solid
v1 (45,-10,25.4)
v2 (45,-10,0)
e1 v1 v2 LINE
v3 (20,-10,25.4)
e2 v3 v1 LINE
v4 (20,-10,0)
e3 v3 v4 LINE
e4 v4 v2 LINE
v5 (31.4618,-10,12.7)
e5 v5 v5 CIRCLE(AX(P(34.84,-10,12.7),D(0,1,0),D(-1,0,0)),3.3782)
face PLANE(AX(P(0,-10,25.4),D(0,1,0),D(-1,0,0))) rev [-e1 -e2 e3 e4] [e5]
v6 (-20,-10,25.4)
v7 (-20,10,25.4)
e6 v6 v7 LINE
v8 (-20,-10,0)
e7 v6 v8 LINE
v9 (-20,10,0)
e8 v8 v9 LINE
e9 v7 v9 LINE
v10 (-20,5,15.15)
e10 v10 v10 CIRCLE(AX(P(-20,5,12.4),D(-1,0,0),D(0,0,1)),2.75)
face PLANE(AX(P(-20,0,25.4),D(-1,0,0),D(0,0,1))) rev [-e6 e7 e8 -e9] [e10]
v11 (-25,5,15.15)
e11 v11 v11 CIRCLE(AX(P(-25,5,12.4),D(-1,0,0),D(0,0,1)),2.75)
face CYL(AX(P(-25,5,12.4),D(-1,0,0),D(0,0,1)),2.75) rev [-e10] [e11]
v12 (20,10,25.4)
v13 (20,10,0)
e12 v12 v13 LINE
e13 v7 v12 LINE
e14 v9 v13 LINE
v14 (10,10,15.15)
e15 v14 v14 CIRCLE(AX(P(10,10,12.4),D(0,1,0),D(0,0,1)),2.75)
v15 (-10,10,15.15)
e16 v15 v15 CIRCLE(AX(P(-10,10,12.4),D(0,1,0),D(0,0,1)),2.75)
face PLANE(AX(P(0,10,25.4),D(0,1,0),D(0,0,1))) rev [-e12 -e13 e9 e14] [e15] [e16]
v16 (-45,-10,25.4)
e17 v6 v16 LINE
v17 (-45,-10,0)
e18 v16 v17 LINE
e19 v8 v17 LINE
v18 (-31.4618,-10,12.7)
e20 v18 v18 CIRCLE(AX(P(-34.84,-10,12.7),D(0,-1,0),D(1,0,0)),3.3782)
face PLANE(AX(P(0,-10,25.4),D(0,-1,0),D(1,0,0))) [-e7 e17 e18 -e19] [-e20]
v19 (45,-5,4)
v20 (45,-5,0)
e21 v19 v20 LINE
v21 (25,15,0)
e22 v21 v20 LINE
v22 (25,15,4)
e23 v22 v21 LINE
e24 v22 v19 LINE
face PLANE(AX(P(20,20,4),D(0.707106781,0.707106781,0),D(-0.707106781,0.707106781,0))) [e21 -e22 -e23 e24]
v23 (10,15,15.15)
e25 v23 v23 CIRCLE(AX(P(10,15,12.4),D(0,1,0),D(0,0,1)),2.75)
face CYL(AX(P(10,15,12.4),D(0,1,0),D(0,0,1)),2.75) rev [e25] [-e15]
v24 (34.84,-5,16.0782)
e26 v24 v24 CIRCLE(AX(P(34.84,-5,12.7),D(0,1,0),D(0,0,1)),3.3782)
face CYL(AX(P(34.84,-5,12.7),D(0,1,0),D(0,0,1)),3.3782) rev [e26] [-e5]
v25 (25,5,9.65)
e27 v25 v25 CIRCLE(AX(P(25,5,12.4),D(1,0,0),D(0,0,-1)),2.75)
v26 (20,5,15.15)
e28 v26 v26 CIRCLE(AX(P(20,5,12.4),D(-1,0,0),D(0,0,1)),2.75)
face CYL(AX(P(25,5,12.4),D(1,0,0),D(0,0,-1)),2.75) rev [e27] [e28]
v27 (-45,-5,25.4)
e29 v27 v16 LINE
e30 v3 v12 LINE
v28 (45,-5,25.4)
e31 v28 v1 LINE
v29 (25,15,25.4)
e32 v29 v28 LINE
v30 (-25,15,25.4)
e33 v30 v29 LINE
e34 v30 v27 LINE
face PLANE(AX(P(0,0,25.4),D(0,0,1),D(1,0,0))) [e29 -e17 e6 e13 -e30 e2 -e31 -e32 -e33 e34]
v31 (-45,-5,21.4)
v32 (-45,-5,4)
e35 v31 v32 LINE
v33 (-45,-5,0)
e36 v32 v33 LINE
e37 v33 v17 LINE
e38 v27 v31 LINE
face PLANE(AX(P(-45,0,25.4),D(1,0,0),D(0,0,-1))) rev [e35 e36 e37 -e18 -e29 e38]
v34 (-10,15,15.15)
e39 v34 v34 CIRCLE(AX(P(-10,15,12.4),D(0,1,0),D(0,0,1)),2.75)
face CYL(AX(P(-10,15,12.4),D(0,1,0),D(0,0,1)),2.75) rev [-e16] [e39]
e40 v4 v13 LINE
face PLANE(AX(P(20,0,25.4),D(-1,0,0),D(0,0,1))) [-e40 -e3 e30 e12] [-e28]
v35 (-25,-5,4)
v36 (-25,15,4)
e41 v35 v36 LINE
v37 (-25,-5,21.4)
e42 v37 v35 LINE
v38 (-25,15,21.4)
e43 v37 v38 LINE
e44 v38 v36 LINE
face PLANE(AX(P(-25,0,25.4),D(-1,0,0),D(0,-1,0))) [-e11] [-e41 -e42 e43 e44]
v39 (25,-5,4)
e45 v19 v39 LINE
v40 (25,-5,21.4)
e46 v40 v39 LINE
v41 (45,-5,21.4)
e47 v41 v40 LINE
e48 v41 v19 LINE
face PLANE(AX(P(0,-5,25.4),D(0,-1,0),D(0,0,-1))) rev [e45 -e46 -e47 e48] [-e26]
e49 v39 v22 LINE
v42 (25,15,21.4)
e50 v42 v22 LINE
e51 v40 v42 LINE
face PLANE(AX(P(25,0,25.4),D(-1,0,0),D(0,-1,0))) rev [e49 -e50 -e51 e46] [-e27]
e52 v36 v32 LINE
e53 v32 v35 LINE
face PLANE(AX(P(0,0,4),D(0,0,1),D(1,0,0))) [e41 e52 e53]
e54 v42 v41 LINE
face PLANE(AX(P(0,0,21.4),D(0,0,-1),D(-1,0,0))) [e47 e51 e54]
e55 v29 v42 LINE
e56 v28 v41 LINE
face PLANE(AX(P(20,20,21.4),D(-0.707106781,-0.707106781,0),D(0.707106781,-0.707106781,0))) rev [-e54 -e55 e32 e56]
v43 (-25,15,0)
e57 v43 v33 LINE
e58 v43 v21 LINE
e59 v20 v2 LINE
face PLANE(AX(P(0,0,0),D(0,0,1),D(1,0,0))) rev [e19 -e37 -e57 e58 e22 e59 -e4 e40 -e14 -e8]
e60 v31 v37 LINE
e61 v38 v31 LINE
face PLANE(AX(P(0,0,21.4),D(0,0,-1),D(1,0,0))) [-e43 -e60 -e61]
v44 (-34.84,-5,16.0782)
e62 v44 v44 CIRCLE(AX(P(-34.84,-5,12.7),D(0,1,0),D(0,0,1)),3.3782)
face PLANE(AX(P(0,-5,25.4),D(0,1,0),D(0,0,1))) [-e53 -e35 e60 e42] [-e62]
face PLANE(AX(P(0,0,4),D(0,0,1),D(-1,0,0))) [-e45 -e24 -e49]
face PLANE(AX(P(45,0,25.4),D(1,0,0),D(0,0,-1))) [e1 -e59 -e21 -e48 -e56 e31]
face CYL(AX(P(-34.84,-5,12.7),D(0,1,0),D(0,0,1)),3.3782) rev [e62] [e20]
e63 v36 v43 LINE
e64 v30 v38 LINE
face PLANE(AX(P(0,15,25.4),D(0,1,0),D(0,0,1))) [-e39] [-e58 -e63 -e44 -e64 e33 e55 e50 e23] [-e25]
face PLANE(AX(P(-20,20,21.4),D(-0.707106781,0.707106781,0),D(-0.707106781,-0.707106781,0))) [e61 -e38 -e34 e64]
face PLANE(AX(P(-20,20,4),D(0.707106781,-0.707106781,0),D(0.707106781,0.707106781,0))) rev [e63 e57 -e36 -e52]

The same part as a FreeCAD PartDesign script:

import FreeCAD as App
import Part
import Sketcher

V = App.Vector
Q = App.Units.Quantity

doc = App.newDocument("Part")
body = doc.addObject("PartDesign::Body", "Body")

sketch1 = body.newObject("Sketcher::SketchObject", "Sketch")
sketch1.AttachmentSupport = (doc.getObject("XY_Plane"), [""])
sketch1.MapMode = "FlatFace"
sketch1.addGeometry(Part.LineSegment(V(-20, 10, 0), V(0, 10, 0)), False)
sketch1.addGeometry(Part.LineSegment(V(0, 10, 0), V(0, 15, 0)), False)
sketch1.addGeometry(Part.LineSegment(V(0, 15, 0), V(-25, 15, 0)), False)
sketch1.addGeometry(Part.LineSegment(V(-25, 15, 0), V(-25, -5, 0)), False)
sketch1.addGeometry(Part.LineSegment(V(-25, -5, 0), V(-45, -5, 0)), False)
sketch1.addGeometry(Part.LineSegment(V(-45, -5, 0), V(-45, -10, 0)), False)
sketch1.addGeometry(Part.LineSegment(V(-45, -10, 0), V(-20, -10, 0)), False)
sketch1.addGeometry(Part.LineSegment(V(-20, -10, 0), V(-20, 10, 0)), False)
sketch1.addConstraint(Sketcher.Constraint("Coincident", 0, 2, 1, 1))
sketch1.addConstraint(Sketcher.Constraint("Coincident", 1, 2, 2, 1))
sketch1.addConstraint(Sketcher.Constraint("Coincident", 2, 2, 3, 1))
sketch1.addConstraint(Sketcher.Constraint("Coincident", 3, 2, 4, 1))
sketch1.addConstraint(Sketcher.Constraint("Coincident", 4, 2, 5, 1))
sketch1.addConstraint(Sketcher.Constraint("Coincident", 5, 2, 6, 1))
sketch1.addConstraint(Sketcher.Constraint("Coincident", 6, 2, 7, 1))
sketch1.addConstraint(Sketcher.Constraint("Coincident", 7, 2, 0, 1))
sketch1.addConstraint(Sketcher.Constraint("Horizontal", 0))
sketch1.addConstraint(Sketcher.Constraint("Vertical", 1))
sketch1.addConstraint(Sketcher.Constraint("Horizontal", 2))
sketch1.addConstraint(Sketcher.Constraint("Vertical", 3))
sketch1.addConstraint(Sketcher.Constraint("Horizontal", 4))
sketch1.addConstraint(Sketcher.Constraint("Vertical", 5))
sketch1.addConstraint(Sketcher.Constraint("Horizontal", 6))
sketch1.addConstraint(Sketcher.Constraint("Vertical", 7))
sketch1.addConstraint(Sketcher.Constraint("PointOnObject", 0, 2, -2))
sketch1.addConstraint(Sketcher.Constraint("Equal", 0, 4))
sketch1.addConstraint(Sketcher.Constraint("Equal", 4, 3))
sketch1.addConstraint(Sketcher.Constraint("Equal", 1, 5))
sketch1.addConstraint(Sketcher.Constraint("DistanceX", 0, 1, 0, 2, Q("20 mm")))
sketch1.addConstraint(Sketcher.Constraint("DistanceX", 2, 2, 2, 1, Q("25 mm")))
sketch1.addConstraint(Sketcher.Constraint("DistanceY", 1, 1, 1, 2, Q("5 mm")))
sketch1.addConstraint(Sketcher.Constraint("DistanceY", -1, 1, 0, 2, Q("10 mm")))
pad1 = body.newObject("PartDesign::Pad", "Pad")
pad1.Profile = sketch1
pad1.Length = 25.4

sketch2 = body.newObject("Sketcher::SketchObject", "Sketch001")
sketch2.AttachmentSupport = (doc.getObject("XY_Plane"), [""])
sketch2.MapMode = "FlatFace"
sketch2.addGeometry(Part.LineSegment(V(-25, -5, 0), V(-25, 15, 0)), False)
sketch2.addGeometry(Part.LineSegment(V(-25, 15, 0), V(-45, -5, 0)), False)
sketch2.addGeometry(Part.LineSegment(V(-45, -5, 0), V(-25, -5, 0)), False)
sketch2.addConstraint(Sketcher.Constraint("Coincident", 0, 2, 1, 1))
sketch2.addConstraint(Sketcher.Constraint("Coincident", 1, 2, 2, 1))
sketch2.addConstraint(Sketcher.Constraint("Coincident", 2, 2, 0, 1))
sketch2.addConstraint(Sketcher.Constraint("Vertical", 0))
sketch2.addConstraint(Sketcher.Constraint("Horizontal", 2))
sketch2.addConstraint(Sketcher.Constraint("Equal", 2, 0))
sketch2.addConstraint(Sketcher.Constraint("DistanceX", 2, 1, 2, 2, Q("20 mm")))
sketch2.addConstraint(Sketcher.Constraint("DistanceX", 0, 2, -1, 1, Q("25 mm")))
sketch2.addConstraint(Sketcher.Constraint("DistanceY", -1, 1, 0, 2, Q("15 mm")))
pad2 = body.newObject("PartDesign::Pad", "Pad001")
pad2.Profile = sketch2
pad2.Length = 4
doc.recompute()

datumplane = body.newObject("PartDesign::Plane", "DatumPlane")
datumplane.AttachmentSupport = (doc.getObject("XY_Plane"), [""])
datumplane.MapMode = "FlatFace"
datumplane.AttachmentOffset = App.Placement(V(0, 0, 12.7), App.Rotation())
mirrored = body.newObject("PartDesign::Mirrored", "Mirrored")
mirrored.Originals = [pad2]
mirrored.MirrorPlane = (datumplane, [""])
body.Tip = mirrored

sketch3 = body.newObject("Sketcher::SketchObject", "Sketch002")
sketch3.AttachmentSupport = (doc.getObject("YZ_Plane"), [""])
sketch3.MapMode = "FlatFace"
sketch3.AttachmentOffset = App.Placement(V(0, 0, -10), App.Rotation())
sketch3.addGeometry(Part.LineSegment(V(1.347633, 12.4, 0), V(15, 12.4, 0)), False)
sketch3.addGeometry(Part.LineSegment(V(15, 12.4, 0), V(15, 15.15, 0)), False)
sketch3.addGeometry(Part.LineSegment(V(15, 15.15, 0), V(3, 15.15, 0)), False)
sketch3.addGeometry(Part.LineSegment(V(3, 15.15, 0), V(1.347633, 12.4, 0)), False)
sketch3.addGeometry(Part.LineSegment(V(15, 12.4, 0), V(1.347633, 12.4, 0)), True)
sketch3.addConstraint(Sketcher.Constraint("Coincident", 0, 2, 1, 1))
sketch3.addConstraint(Sketcher.Constraint("Coincident", 1, 2, 2, 1))
sketch3.addConstraint(Sketcher.Constraint("Coincident", 2, 2, 3, 1))
sketch3.addConstraint(Sketcher.Constraint("Coincident", 3, 2, 0, 1))
sketch3.addConstraint(Sketcher.Constraint("Horizontal", 0))
sketch3.addConstraint(Sketcher.Constraint("Vertical", 1))
sketch3.addConstraint(Sketcher.Constraint("Horizontal", 2))
sketch3.addConstraint(Sketcher.Constraint("Horizontal", 4))
sketch3.addConstraint(Sketcher.Constraint("Coincident", 4, 1, 0, 2))
sketch3.addConstraint(Sketcher.Constraint("Equal", 0, 4))
sketch3.addConstraint(Sketcher.Constraint("DistanceX", 2, 2, 2, 1, Q("12 mm")))
sketch3.addConstraint(Sketcher.Constraint("Angle", 3, Q("-121 deg")))
sketch3.addConstraint(Sketcher.Constraint("DistanceX", -1, 1, 0, 2, Q("15 mm")))
sketch3.addConstraint(Sketcher.Constraint("DistanceY", 1, 1, 1, 2, Q("2.75 mm")))
sketch3.addConstraint(Sketcher.Constraint("DistanceY", -1, 1, 0, 2, Q("12.4 mm")))
groove = body.newObject("PartDesign::Groove", "Groove")
groove.Profile = sketch3
groove.ReferenceAxis = (sketch3, ["Axis0"])
groove.Angle = 360

sketch4 = body.newObject("Sketcher::SketchObject", "Sketch003")
sketch4.AttachmentSupport = (doc.getObject("XZ_Plane"), [""])
sketch4.MapMode = "FlatFace"
sketch4.AttachmentOffset = App.Placement(V(0, 0, -5), App.Rotation())
sketch4.addGeometry(Part.LineSegment(V(-11.347633, 12.4, 0), V(-25, 12.4, 0)), False)
sketch4.addGeometry(Part.LineSegment(V(-25, 12.4, 0), V(-25, 15.15, 0)), False)
sketch4.addGeometry(Part.LineSegment(V(-25, 15.15, 0), V(-13, 15.15, 0)), False)
sketch4.addGeometry(Part.LineSegment(V(-13, 15.15, 0), V(-11.347633, 12.4, 0)), False)
sketch4.addGeometry(Part.LineSegment(V(-25, 12.4, 0), V(-11.347633, 12.4, 0)), True)
sketch4.addConstraint(Sketcher.Constraint("Coincident", 0, 2, 1, 1))
sketch4.addConstraint(Sketcher.Constraint("Coincident", 1, 2, 2, 1))
sketch4.addConstraint(Sketcher.Constraint("Coincident", 2, 2, 3, 1))
sketch4.addConstraint(Sketcher.Constraint("Coincident", 3, 2, 0, 1))
sketch4.addConstraint(Sketcher.Constraint("Horizontal", 0))
sketch4.addConstraint(Sketcher.Constraint("Vertical", 1))
sketch4.addConstraint(Sketcher.Constraint("Horizontal", 2))
sketch4.addConstraint(Sketcher.Constraint("Horizontal", 4))
sketch4.addConstraint(Sketcher.Constraint("Coincident", 4, 1, 0, 2))
sketch4.addConstraint(Sketcher.Constraint("Equal", 0, 4))
sketch4.addConstraint(Sketcher.Constraint("DistanceX", 2, 1, 2, 2, Q("12 mm")))
sketch4.addConstraint(Sketcher.Constraint("Angle", 3, Q("-59 deg")))
sketch4.addConstraint(Sketcher.Constraint("DistanceX", 0, 2, -1, 1, Q("25 mm")))
sketch4.addConstraint(Sketcher.Constraint("DistanceY", 1, 1, 1, 2, Q("2.75 mm")))
sketch4.addConstraint(Sketcher.Constraint("DistanceY", -1, 1, 0, 2, Q("12.4 mm")))
groove2 = body.newObject("PartDesign::Groove", "Groove001")
groove2.Profile = sketch4
groove2.ReferenceAxis = (sketch4, ["Axis0"])
groove2.Angle = 360

sketch5 = body.newObject("Sketcher::SketchObject", "Sketch004")
sketch5.AttachmentSupport = (doc.getObject("YZ_Plane"), [""])
sketch5.MapMode = "FlatFace"
sketch5.AttachmentOffset = App.Placement(V(0, 0, -34.84), App.Rotation())
sketch5.addGeometry(Part.LineSegment(V(-19.029827, 12.7, 0), V(-5, 12.7, 0)), False)
sketch5.addGeometry(Part.LineSegment(V(-5, 12.7, 0), V(-5, 16.0782, 0)), False)
sketch5.addGeometry(Part.LineSegment(V(-5, 16.0782, 0), V(-17, 16.0782, 0)), False)
sketch5.addGeometry(Part.LineSegment(V(-17, 16.0782, 0), V(-19.029827, 12.7, 0)), False)
sketch5.addGeometry(Part.LineSegment(V(-5, 12.7, 0), V(-19.029827, 12.7, 0)), True)
sketch5.addConstraint(Sketcher.Constraint("Coincident", 0, 2, 1, 1))
sketch5.addConstraint(Sketcher.Constraint("Coincident", 1, 2, 2, 1))
sketch5.addConstraint(Sketcher.Constraint("Coincident", 2, 2, 3, 1))
sketch5.addConstraint(Sketcher.Constraint("Coincident", 3, 2, 0, 1))
sketch5.addConstraint(Sketcher.Constraint("Horizontal", 0))
sketch5.addConstraint(Sketcher.Constraint("Vertical", 1))
sketch5.addConstraint(Sketcher.Constraint("Horizontal", 2))
sketch5.addConstraint(Sketcher.Constraint("Horizontal", 4))
sketch5.addConstraint(Sketcher.Constraint("Coincident", 4, 1, 0, 2))
sketch5.addConstraint(Sketcher.Constraint("Equal", 0, 4))
sketch5.addConstraint(Sketcher.Constraint("DistanceX", 2, 2, 2, 1, Q("12 mm")))
sketch5.addConstraint(Sketcher.Constraint("Angle", 3, Q("-121 deg")))
sketch5.addConstraint(Sketcher.Constraint("DistanceX", 0, 2, -1, 1, Q("5 mm")))
sketch5.addConstraint(Sketcher.Constraint("DistanceY", -1, 1, 0, 2, Q("12.7 mm")))
sketch5.addConstraint(Sketcher.Constraint("DistanceY", 1, 1, 1, 2, Q("3.3782 mm")))
groove3 = body.newObject("PartDesign::Groove", "Groove002")
groove3.Profile = sketch5
groove3.ReferenceAxis = (sketch5, ["Axis0"])
groove3.Angle = 360
doc.recompute()

mirrored2 = body.newObject("PartDesign::Mirrored", "Mirrored001")
mirrored2.Originals = [pad1, pad2, groove, groove2, groove3]
mirrored2.MirrorPlane = (doc.getObject("YZ_Plane"), [""])
body.Tip = mirrored2

sketch6 = body.newObject("Sketcher::SketchObject", "Sketch005")
sketch6.AttachmentSupport = (doc.getObject("XY_Plane"), [""])
sketch6.MapMode = "FlatFace"
sketch6.AttachmentOffset = App.Placement(V(0, 0, 25.4), App.Rotation())
sketch6.addGeometry(Part.LineSegment(V(25, -5, 0), V(25, 15, 0)), False)
sketch6.addGeometry(Part.LineSegment(V(25, 15, 0), V(45, -5, 0)), False)
sketch6.addGeometry(Part.LineSegment(V(45, -5, 0), V(25, -5, 0)), False)
sketch6.addConstraint(Sketcher.Constraint("Coincident", 0, 2, 1, 1))
sketch6.addConstraint(Sketcher.Constraint("Coincident", 1, 2, 2, 1))
sketch6.addConstraint(Sketcher.Constraint("Coincident", 2, 2, 0, 1))
sketch6.addConstraint(Sketcher.Constraint("Vertical", 0))
sketch6.addConstraint(Sketcher.Constraint("Horizontal", 2))
sketch6.addConstraint(Sketcher.Constraint("Equal", 2, 0))
sketch6.addConstraint(Sketcher.Constraint("DistanceX", 2, 2, 2, 1, Q("20 mm")))
sketch6.addConstraint(Sketcher.Constraint("DistanceX", -1, 1, 0, 2, Q("25 mm")))
sketch6.addConstraint(Sketcher.Constraint("DistanceY", -1, 1, 0, 2, Q("15 mm")))
pad3 = body.newObject("PartDesign::Pad", "Pad002")
pad3.Profile = sketch6
pad3.Length = 4
pad3.Reversed = True

doc.recompute()
